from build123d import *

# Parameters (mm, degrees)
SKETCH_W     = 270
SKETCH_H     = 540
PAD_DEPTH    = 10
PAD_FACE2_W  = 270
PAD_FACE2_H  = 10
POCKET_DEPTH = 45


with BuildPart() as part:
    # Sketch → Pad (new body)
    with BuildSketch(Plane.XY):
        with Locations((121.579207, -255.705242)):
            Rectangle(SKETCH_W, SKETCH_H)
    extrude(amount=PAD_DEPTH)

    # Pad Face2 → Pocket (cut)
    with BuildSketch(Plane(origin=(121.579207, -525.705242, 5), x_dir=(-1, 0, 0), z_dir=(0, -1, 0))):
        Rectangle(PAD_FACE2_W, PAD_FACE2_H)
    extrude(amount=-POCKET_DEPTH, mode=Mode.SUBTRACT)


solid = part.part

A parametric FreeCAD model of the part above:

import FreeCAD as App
import Part
import Sketcher

doc = App.newDocument("Part")
body = doc.addObject("PartDesign::Body", "Body")

# Sketch on XY plane
sketch1 = body.newObject("Sketcher::SketchObject", "Sketch")
sketch1.AttachmentSupport = (doc.getObject("XY_Plane"), [""])
sketch1.MapMode = "FlatFace"
sketch1.addGeometry([
    Part.LineSegment(App.Vector(-13.420793, 14.294758, 0), App.Vector(-13.420793, -525.705242, 0)),
    Part.LineSegment(App.Vector(-13.420793, -525.705242, 0), App.Vector(256.579207, -525.705242, 0)),
    Part.LineSegment(App.Vector(256.579207, -525.705242, 0), App.Vector(256.579207, 14.294758, 0)),
    Part.LineSegment(App.Vector(256.579207, 14.294758, 0), App.Vector(-13.420793, 14.294758, 0)),
], False)
sketch1.addConstraint([
    Sketcher.Constraint("Coincident", 0, 2, 1, 1),
    Sketcher.Constraint("Coincident", 1, 2, 2, 1),
    Sketcher.Constraint("Coincident", 2, 2, 3, 1),
    Sketcher.Constraint("Coincident", 3, 2, 0, 1),
    Sketcher.Constraint("Vertical", 0),
    Sketcher.Constraint("Horizontal", 1),
    Sketcher.Constraint("Vertical", 2),
    Sketcher.Constraint("Horizontal", 3),
    Sketcher.Constraint("DistanceX", 1, 1, 1, 2, 270.0),
    Sketcher.Constraint("DistanceY", 0, 2, 0, 1, 540.0),
    Sketcher.Constraint("DistanceY", 0, 2, -1, 1, 525.705242),
    Sketcher.Constraint("DistanceX", 0, 2, -1, 1, 13.420793),
])
pad1 = body.newObject("PartDesign::Pad", "Pad")
pad1.Profile = sketch1
pad1.Length = 10

# Sketch on XZ plane
sketch2 = body.newObject("Sketcher::SketchObject", "Sketch001")
sketch2.AttachmentSupport = (doc.getObject("XZ_Plane"), [""])
sketch2.MapMode = "FlatFace"
sketch2.AttachmentOffset = App.Placement(App.Vector(0, 0, 525.705242), App.Rotation())
sketch2.addGeometry([
    Part.LineSegment(App.Vector(256.579207, 0, 0), App.Vector(256.579207, 10, 0)),
    Part.LineSegment(App.Vector(256.579207, 10, 0), App.Vector(-13.420793, 10, 0)),
    Part.LineSegment(App.Vector(-13.420793, 10, 0), App.Vector(-13.420793, 0, 0)),
    Part.LineSegment(App.Vector(-13.420793, 0, 0), App.Vector(256.579207, 0, 0)),
], False)
sketch2.addConstraint([
    Sketcher.Constraint("Coincident", 0, 2, 1, 1),
    Sketcher.Constraint("Coincident", 1, 2, 2, 1),
    Sketcher.Constraint("Coincident", 2, 2, 3, 1),
    Sketcher.Constraint("Coincident", 3, 2, 0, 1),
    Sketcher.Constraint("Vertical", 0),
    Sketcher.Constraint("Horizontal", 1),
    Sketcher.Constraint("Vertical", 2),
    Sketcher.Constraint("Horizontal", 3),
    Sketcher.Constraint("PointOnObject", 2, 2, -1),
    Sketcher.Constraint("DistanceX", 1, 2, 1, 1, 270.0),
    Sketcher.Constraint("DistanceY", 0, 1, 0, 2, 10.0),
    Sketcher.Constraint("DistanceX", -1, 1, 0, 2, 256.579207),
])
pocket1 = body.newObject("PartDesign::Pocket", "Pocket")
pocket1.Profile = sketch2
pocket1.Length = 45

doc.recompute()
